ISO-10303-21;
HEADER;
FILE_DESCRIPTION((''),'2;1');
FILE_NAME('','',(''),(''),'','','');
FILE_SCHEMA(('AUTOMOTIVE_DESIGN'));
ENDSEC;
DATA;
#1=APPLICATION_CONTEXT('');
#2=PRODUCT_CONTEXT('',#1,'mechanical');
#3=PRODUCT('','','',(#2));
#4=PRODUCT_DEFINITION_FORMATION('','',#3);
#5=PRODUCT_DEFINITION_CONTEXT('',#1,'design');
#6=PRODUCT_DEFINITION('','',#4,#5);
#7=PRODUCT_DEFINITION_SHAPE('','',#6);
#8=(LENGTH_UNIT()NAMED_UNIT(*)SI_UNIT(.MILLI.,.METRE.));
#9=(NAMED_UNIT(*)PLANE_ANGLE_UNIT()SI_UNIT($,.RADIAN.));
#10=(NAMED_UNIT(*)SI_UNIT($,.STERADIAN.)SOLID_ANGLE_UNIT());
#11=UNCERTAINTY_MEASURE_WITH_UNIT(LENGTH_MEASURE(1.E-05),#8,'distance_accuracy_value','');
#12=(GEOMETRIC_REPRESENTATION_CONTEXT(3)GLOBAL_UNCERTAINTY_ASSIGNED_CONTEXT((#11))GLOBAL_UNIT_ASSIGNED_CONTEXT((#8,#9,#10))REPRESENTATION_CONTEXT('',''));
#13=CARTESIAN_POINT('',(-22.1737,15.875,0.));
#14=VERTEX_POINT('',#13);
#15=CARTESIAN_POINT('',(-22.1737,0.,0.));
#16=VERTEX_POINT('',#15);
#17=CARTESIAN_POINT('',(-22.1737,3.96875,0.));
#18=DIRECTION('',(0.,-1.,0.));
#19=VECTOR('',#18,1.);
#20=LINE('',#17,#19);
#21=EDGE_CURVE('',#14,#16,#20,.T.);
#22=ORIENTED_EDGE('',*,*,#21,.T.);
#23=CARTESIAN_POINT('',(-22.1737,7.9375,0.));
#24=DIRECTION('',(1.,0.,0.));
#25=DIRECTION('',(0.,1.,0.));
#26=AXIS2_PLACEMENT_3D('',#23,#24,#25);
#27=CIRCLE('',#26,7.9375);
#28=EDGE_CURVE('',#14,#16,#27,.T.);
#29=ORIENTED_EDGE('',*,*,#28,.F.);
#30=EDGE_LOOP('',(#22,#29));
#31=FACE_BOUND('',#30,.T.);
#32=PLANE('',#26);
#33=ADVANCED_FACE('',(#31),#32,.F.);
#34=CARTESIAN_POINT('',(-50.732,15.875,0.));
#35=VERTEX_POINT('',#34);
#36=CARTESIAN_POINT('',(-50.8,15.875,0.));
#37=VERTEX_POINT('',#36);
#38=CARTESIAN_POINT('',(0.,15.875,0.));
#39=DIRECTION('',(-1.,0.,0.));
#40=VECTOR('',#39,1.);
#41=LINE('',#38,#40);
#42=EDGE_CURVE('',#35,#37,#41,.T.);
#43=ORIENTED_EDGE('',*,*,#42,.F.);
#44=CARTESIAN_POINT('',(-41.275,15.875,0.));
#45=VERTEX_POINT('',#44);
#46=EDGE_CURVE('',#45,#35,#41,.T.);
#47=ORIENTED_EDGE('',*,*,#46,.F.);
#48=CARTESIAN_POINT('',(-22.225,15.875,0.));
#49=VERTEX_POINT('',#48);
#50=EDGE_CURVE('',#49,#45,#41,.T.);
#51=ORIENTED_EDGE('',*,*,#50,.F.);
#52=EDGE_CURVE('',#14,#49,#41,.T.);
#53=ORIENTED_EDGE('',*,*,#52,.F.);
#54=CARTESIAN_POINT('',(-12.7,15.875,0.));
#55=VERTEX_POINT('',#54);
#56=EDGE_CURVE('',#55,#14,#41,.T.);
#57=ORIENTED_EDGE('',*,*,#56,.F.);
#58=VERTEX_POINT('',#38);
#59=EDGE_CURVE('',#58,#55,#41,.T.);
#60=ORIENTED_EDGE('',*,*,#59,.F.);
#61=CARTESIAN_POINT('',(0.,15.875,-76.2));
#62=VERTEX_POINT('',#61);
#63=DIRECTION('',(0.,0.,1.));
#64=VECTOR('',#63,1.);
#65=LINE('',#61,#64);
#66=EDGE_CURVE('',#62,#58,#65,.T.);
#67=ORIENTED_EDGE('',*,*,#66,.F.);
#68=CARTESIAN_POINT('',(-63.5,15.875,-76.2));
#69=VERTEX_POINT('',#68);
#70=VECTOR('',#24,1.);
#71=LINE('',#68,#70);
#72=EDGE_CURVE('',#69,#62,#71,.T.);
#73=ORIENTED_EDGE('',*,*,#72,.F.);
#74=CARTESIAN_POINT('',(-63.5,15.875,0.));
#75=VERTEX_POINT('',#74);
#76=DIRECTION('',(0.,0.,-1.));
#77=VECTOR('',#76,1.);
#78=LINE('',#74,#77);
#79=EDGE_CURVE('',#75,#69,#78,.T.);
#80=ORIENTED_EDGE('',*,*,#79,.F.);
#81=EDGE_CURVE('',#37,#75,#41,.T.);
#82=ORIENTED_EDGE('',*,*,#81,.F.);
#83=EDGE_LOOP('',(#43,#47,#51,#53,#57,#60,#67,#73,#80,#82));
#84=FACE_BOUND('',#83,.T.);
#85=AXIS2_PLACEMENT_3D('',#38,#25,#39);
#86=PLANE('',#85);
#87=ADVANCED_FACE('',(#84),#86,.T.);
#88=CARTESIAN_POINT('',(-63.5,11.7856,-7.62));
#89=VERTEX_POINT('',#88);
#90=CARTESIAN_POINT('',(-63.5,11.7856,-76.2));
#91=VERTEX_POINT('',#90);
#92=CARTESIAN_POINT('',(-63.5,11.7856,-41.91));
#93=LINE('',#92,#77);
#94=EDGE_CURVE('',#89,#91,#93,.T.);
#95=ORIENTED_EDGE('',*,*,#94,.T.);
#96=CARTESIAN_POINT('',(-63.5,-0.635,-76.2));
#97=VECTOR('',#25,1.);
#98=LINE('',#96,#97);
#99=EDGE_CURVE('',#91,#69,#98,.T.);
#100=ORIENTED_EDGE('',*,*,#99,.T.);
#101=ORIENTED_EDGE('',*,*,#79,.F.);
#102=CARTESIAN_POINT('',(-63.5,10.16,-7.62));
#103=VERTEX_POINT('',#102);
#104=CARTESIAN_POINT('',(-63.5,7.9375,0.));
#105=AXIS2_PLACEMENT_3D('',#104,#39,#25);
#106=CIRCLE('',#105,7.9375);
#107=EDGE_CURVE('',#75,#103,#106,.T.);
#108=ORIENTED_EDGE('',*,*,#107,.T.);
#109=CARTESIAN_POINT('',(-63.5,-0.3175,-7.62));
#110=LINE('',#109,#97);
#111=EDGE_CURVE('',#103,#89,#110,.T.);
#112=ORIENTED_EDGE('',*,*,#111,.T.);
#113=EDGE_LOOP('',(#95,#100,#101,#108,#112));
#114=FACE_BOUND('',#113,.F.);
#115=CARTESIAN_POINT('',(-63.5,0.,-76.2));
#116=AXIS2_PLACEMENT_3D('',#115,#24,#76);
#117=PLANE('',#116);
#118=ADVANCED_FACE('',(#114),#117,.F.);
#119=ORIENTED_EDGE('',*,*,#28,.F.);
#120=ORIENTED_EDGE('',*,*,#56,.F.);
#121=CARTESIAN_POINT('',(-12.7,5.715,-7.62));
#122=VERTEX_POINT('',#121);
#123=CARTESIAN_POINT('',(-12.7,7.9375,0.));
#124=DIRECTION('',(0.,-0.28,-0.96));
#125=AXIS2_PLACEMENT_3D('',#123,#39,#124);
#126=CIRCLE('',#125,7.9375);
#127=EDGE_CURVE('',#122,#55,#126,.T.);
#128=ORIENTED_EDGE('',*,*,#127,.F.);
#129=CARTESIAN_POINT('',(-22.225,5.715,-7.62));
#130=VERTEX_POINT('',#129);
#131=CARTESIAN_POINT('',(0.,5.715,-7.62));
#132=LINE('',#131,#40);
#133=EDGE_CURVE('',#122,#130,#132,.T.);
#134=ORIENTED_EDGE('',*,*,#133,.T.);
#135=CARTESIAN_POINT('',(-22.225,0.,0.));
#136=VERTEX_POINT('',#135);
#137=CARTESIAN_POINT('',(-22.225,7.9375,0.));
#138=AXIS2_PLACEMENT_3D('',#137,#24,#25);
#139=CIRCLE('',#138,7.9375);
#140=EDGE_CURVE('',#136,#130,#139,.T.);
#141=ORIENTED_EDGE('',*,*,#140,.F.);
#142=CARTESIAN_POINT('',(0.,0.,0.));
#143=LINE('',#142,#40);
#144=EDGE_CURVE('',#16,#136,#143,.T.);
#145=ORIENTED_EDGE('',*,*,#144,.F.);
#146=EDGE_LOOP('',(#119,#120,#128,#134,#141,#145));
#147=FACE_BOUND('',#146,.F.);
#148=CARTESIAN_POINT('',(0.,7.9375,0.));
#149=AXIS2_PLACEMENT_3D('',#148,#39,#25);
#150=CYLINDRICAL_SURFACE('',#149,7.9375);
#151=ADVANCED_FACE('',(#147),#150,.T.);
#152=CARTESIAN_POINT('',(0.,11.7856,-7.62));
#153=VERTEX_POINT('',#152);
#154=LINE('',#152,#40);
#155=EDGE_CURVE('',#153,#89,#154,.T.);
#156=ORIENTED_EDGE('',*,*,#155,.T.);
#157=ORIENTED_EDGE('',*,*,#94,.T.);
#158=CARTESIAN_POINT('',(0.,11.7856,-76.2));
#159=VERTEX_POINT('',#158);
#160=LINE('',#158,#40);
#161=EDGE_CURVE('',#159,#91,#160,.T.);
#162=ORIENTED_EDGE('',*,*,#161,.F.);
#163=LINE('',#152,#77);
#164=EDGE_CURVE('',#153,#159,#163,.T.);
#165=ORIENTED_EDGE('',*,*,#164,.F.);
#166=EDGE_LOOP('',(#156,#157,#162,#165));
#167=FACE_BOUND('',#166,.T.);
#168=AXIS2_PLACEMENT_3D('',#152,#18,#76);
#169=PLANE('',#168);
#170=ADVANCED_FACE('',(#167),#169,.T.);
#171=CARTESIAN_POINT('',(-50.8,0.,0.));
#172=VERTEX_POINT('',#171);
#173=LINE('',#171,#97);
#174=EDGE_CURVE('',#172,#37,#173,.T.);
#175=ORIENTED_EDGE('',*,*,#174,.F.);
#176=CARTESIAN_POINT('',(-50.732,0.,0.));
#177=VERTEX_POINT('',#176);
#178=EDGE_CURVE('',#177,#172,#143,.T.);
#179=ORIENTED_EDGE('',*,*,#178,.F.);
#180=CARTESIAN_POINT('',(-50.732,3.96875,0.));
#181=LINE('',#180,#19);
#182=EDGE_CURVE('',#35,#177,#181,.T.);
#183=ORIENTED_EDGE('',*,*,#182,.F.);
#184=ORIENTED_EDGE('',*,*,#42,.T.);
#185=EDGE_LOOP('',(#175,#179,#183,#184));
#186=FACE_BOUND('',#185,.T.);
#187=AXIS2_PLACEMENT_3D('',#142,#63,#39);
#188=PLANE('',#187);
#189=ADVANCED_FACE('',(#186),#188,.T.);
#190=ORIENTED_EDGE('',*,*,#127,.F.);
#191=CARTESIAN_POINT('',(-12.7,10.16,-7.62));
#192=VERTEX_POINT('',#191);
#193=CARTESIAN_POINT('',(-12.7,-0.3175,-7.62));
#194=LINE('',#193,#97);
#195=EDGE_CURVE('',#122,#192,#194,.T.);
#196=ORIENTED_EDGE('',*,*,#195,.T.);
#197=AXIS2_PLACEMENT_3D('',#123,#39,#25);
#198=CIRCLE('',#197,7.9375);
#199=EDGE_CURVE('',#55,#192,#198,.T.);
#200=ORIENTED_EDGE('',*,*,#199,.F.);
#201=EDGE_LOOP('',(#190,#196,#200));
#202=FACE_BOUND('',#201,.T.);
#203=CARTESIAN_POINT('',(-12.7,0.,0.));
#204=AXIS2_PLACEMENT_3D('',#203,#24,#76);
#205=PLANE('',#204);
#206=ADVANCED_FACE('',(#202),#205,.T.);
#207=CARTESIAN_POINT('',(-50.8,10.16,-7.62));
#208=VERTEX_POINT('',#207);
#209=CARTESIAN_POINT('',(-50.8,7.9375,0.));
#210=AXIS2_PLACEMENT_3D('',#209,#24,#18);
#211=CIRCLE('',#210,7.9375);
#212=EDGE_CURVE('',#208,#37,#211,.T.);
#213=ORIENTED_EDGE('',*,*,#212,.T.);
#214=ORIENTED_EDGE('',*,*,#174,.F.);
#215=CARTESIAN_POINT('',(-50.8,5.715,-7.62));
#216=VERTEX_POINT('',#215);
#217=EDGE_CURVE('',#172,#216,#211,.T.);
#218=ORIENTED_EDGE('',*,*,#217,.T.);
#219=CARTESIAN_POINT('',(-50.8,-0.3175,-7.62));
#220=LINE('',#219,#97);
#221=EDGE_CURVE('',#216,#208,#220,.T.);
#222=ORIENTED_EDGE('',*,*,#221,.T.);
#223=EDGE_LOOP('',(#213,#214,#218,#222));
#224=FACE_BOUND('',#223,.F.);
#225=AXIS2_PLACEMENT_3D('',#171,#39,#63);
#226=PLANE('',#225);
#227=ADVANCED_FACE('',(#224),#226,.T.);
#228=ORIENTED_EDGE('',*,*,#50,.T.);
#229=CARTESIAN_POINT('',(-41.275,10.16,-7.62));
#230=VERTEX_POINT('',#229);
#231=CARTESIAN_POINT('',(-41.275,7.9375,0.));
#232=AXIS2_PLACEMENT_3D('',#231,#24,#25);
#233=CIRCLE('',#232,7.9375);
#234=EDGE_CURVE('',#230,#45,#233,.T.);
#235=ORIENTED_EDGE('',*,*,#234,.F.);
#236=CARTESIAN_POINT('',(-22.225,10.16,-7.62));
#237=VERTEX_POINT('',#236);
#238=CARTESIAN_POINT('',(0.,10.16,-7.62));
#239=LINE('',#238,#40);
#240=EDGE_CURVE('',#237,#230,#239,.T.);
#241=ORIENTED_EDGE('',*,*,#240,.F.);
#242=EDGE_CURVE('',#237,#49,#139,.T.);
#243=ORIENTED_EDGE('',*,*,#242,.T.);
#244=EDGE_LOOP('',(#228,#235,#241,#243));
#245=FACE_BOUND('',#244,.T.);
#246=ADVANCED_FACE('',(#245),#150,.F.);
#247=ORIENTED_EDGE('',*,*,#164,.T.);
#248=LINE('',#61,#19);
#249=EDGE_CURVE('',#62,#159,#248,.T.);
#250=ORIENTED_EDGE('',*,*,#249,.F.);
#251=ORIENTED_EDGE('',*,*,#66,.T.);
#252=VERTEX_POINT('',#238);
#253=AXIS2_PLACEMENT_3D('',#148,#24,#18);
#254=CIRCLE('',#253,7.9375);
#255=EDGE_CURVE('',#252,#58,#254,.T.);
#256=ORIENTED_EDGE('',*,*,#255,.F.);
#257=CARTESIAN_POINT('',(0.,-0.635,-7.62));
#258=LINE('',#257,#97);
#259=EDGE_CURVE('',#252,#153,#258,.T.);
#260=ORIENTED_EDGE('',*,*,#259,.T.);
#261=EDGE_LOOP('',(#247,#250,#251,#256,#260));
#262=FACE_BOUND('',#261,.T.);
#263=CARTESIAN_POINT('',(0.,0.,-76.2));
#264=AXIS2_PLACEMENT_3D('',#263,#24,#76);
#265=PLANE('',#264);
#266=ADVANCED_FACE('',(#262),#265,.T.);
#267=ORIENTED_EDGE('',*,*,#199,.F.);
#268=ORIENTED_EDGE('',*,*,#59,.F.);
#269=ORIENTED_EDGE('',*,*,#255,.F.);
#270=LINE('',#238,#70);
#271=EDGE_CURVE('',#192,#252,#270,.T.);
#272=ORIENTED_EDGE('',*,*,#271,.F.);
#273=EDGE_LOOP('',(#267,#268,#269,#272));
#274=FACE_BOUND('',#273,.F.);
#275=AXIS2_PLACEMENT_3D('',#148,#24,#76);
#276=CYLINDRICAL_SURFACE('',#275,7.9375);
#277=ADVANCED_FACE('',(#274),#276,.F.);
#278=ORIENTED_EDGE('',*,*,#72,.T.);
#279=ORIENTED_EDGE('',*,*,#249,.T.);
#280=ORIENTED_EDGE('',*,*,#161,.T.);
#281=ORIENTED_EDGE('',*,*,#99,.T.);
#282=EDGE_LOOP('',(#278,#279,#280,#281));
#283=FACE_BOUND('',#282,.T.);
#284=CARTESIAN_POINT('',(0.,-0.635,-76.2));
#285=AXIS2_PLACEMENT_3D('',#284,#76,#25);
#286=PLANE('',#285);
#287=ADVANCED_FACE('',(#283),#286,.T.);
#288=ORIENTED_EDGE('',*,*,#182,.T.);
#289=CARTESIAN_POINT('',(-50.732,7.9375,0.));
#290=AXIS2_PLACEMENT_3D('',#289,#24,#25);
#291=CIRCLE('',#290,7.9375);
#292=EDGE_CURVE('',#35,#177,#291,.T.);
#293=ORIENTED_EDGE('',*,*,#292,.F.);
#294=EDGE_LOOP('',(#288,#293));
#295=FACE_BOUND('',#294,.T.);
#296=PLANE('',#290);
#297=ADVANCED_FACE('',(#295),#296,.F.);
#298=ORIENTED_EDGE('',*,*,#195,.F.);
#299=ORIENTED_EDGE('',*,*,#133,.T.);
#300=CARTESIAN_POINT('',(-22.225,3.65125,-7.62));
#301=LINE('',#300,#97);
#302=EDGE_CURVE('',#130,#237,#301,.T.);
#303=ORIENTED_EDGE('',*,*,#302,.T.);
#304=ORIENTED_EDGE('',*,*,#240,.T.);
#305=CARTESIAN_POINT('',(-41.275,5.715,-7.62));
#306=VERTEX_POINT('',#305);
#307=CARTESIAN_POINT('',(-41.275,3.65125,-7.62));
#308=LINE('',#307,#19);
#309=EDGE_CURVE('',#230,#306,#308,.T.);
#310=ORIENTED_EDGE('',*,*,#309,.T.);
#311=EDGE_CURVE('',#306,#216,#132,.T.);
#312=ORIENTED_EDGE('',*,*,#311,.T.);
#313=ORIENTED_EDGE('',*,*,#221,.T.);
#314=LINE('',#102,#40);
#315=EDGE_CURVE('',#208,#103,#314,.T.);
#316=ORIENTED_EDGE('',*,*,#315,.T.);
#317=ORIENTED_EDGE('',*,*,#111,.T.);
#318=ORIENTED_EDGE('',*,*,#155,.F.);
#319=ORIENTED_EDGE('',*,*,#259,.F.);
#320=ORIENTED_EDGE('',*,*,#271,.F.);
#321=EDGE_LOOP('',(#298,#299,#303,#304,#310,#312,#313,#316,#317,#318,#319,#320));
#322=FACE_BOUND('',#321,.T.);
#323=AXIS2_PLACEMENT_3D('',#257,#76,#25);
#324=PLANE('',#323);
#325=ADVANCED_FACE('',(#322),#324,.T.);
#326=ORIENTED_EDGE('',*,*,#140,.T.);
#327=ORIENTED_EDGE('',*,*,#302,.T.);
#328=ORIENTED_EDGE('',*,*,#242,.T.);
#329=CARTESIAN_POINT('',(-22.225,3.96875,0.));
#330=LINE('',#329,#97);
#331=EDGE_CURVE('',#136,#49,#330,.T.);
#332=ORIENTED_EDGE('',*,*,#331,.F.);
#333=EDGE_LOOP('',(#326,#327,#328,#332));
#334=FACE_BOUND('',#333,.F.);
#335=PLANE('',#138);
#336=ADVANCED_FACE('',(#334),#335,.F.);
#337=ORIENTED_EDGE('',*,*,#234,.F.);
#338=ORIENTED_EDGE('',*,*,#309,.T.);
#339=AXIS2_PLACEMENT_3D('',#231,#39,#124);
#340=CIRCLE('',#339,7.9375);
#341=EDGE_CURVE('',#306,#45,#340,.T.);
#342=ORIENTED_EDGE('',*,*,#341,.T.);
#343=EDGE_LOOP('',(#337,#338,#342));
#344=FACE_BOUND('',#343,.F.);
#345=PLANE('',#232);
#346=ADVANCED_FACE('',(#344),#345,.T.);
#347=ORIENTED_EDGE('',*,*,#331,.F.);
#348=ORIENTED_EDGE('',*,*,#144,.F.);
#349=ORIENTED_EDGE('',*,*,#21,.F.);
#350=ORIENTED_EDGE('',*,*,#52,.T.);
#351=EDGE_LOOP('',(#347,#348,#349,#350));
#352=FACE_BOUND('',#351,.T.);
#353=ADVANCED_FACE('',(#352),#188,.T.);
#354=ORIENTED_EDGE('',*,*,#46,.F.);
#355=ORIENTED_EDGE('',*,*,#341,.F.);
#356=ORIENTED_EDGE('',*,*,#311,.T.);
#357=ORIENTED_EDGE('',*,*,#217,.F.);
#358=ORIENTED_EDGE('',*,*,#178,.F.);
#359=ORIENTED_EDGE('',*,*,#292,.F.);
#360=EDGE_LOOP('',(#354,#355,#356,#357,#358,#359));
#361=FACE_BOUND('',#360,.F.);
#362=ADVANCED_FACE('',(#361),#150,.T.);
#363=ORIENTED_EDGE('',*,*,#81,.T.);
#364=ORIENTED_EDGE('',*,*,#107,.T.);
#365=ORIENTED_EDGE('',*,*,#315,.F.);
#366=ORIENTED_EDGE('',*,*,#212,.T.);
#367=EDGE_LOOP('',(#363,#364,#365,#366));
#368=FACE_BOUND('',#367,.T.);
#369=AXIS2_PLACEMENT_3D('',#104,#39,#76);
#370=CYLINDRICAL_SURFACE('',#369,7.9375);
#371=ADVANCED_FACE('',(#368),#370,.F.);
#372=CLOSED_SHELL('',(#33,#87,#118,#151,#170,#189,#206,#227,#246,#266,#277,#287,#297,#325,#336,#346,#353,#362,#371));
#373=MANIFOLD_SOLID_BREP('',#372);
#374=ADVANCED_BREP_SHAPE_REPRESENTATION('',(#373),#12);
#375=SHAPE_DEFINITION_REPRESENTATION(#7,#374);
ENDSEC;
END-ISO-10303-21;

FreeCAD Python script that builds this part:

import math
import FreeCAD as App
import Part
import Sketcher
Q = App.Units.Quantity


def add_polygon(sketch, points):
    """Adds a closed chain of lines whose ends are joined by coincident constraints."""
    first, n = sketch.GeometryCount, len(points)
    for a, b in zip(points, points[1:] + points[:1]):
        sketch.addGeometry(Part.LineSegment(App.Vector(*a, 0), App.Vector(*b, 0)), False)
    for i in range(n):
        sketch.addConstraint(Sketcher.Constraint("Coincident", first + i, 2, first + (i + 1) % n, 1))

doc = App.newDocument("Part")
body = doc.addObject("PartDesign::Body", "Body")

# Sketch on XZ plane
sketch1 = doc.addObject("Sketcher::SketchObject", "Sketch")
body.addObject(sketch1)
sketch1.AttachmentSupport = (doc.XZ_Plane, [""])
sketch1.MapMode = "FlatFace"
add_polygon(sketch1, [(-64, 0), (0, 0), (0, -76), (-64, -76)])  # lines 0-3
sketch1.addConstraint([
    Sketcher.Constraint("Horizontal", 0),
    Sketcher.Constraint("Vertical", 1),
    Sketcher.Constraint("Horizontal", 2),
    Sketcher.Constraint("Vertical", 3),
    Sketcher.Constraint("Coincident", 0, 2, -1, 1),
    Sketcher.Constraint("DistanceY", 1, 2, 1, 1, Q("3 in")),
    Sketcher.Constraint("DistanceX", 0, 1, 0, 2, Q("2.5 in")),
])
pad1 = doc.addObject("PartDesign::Pad", "Pad")
body.addObject(pad1)
pad1.Profile = sketch1
pad1.Length = Q("0.625 in")
pad1.Reversed = True

# Sketch on YZ plane
sketch2 = doc.addObject("Sketcher::SketchObject", "Sketch001")
body.addObject(sketch2)
sketch2.AttachmentSupport = (doc.YZ_Plane, [""])
sketch2.MapMode = "FlatFace"
sketch2.addGeometry([
    Part.LineSegment(App.Vector(16, 0, 0), App.Vector(0, 0, 0)),
    Part.ArcOfCircle(Part.Circle(App.Vector(8, 0, 0), App.Vector(0, 0, 1), 8), math.radians(180), math.radians(360)),
], False)
sketch2.addConstraint([
    Sketcher.Constraint("Coincident", 0, 1, 1, 2),
    Sketcher.Constraint("Coincident", 1, 1, 0, 2),
    Sketcher.Constraint("Horizontal", 0),
    Sketcher.Constraint("Coincident", 1, 1, -1, 1),
    Sketcher.Constraint("PointOnObject", 1, 3, -1),
    Sketcher.Constraint("Radius", 1, Q("0.3125 in")),
])
pocket1 = doc.addObject("PartDesign::Pocket", "Pocket")
body.addObject(pocket1)
pocket1.Profile = sketch2
pocket1.Length = Q("0.5 in")
doc.recompute()

datumplane = doc.addObject("PartDesign::Plane", "DatumPlane")
body.addObject(datumplane)
datumplane.AttachmentSupport = (doc.YZ_Plane, [""])
datumplane.MapMode = "FlatFace"
datumplane.AttachmentOffset = App.Placement(App.Vector(0, 0, -1.25 * 25.4), App.Rotation())
mirrored = doc.addObject("PartDesign::Mirrored", "Mirrored")
body.addObject(mirrored)
mirrored.Originals = [pocket1]
mirrored.MirrorPlane = (datumplane, [""])
body.Tip = mirrored

# Sketch on XY plane
sketch3 = doc.addObject("Sketcher::SketchObject", "Sketch002")
body.addObject(sketch3)
sketch3.AttachmentSupport = (doc.XY_Plane, [""])
sketch3.MapMode = "FlatFace"
add_polygon(sketch3, [(-22, 8), (-22, 16), (-41, 16), (-41, 8)])  # lines 0-3
sketch3.addGeometry(Part.LineSegment(App.Vector(-41, 8, 0), App.Vector(-22, 8, 0)), True)  # axis
sketch3.addConstraint([
    Sketcher.Constraint("Vertical", 0),
    Sketcher.Constraint("Horizontal", 1),
    Sketcher.Constraint("Vertical", 2),
    Sketcher.Constraint("Horizontal", 3),
    Sketcher.Constraint("Horizontal", 4),
    Sketcher.Constraint("Coincident", 4, 1, 2, 2),
    Sketcher.Constraint("Vertical", 0, 2, 4, 2),
    Sketcher.Constraint("DistanceX", 1, 2, 1, 1, Q("0.75 in")),
    Sketcher.Constraint("DistanceY", 0, 1, 0, 2, Q("0.3125 in")),
    Sketcher.Constraint("DistanceX", 0, 2, -1, 1, Q("0.875 in")),
    Sketcher.Constraint("DistanceY", -1, 1, 0, 2, Q("0.625 in")),
])
groove = doc.addObject("PartDesign::Groove", "Groove")
body.addObject(groove)
groove.Profile = sketch3
groove.ReferenceAxis = (sketch3, ["Axis0"])
groove.Angle = 360

# Sketch on XY plane
sketch4 = doc.addObject("Sketcher::SketchObject", "Sketch003")
body.addObject(sketch4)
sketch4.AttachmentSupport = (doc.XY_Plane, [""])
sketch4.MapMode = "FlatFace"
add_polygon(sketch4, [(-13, 8), (-13, 16), (-22, 16), (-22, 8)])  # lines 0-3
add_polygon(sketch4, [(-41, 8), (-41, 16), (-51, 16), (-51, 8)])  # lines 4-7
sketch4.addGeometry(Part.LineSegment(App.Vector(-51, 8, 0), App.Vector(-13, 8, 0)), True)  # axis
sketch4.addConstraint([
    Sketcher.Constraint("Vertical", 0),
    Sketcher.Constraint("Horizontal", 1),
    Sketcher.Constraint("Vertical", 2),
    Sketcher.Constraint("Horizontal", 3),
    Sketcher.Constraint("Vertical", 4),
    Sketcher.Constraint("Horizontal", 5),
    Sketcher.Constraint("Vertical", 6),
    Sketcher.Constraint("Horizontal", 7),
    Sketcher.Constraint("Horizontal", 8),
    Sketcher.Constraint("Coincident", 8, 1, 6, 2),
    Sketcher.Constraint("Coincident", 8, 2, 3, 2),
    Sketcher.Constraint("Horizontal", 1, 2, 4, 2),
    Sketcher.Constraint("DistanceX", 0, 2, -1, 1, Q("0.5 in")),
    Sketcher.Constraint("DistanceY", 0, 1, 0, 2, Q("0.3125 in")),
    Sketcher.Constraint("DistanceY", -1, 1, 0, 2, Q("0.625 in")),
    Sketcher.Constraint("DistanceX", 4, 2, -1, 1, Q("1.625 in")),
    Sketcher.Constraint("DistanceX", 1, 2, 1, 1, 9.4737),
    Sketcher.Constraint("DistanceX", 5, 2, 5, 1, 9.457),
])
revolution = doc.addObject("PartDesign::Revolution", "Revolution")
body.addObject(revolution)
revolution.Profile = sketch4
revolution.ReferenceAxis = (sketch4, ["Axis0"])
revolution.Angle = 360

# Sketch on YZ plane
sketch5 = doc.addObject("Sketcher::SketchObject", "Sketch004")
body.addObject(sketch5)
sketch5.AttachmentSupport = (doc.YZ_Plane, [""])
sketch5.MapMode = "FlatFace"
add_polygon(sketch5, [(-0.6, -76.2), (0, -76.2), (0, -12.7), (-0.6, -12.7)])  # lines 0-3
sketch5.addConstraint([
    Sketcher.Constraint("Horizontal", 0),
    Sketcher.Constraint("Vertical", 1),
    Sketcher.Constraint("Horizontal", 2),
    Sketcher.Constraint("Vertical", 3),
    Sketcher.Constraint("PointOnObject", 0, 2, -2),
    Sketcher.Constraint("DistanceY", 0, 2, -1, 1, Q("3 in")),
    Sketcher.Constraint("DistanceX", 0, 1, 0, 2, Q("0.025 in")),
    Sketcher.Constraint("DistanceY", 1, 1, 1, 2, 63.486),
])
pad2 = doc.addObject("PartDesign::Pad", "Pad001")
body.addObject(pad2)
pad2.Profile = sketch5
pad2.Length = Q("2.5 in")
pad2.Reversed = True

# Sketch on YZ plane
sketch6 = doc.addObject("Sketcher::SketchObject", "Sketch005")
body.addObject(sketch6)
sketch6.AttachmentSupport = (doc.YZ_Plane, [""])
sketch6.MapMode = "FlatFace"
add_polygon(sketch6, [(-1, -8), (-1, -76), (12, -76), (12, -8)])  # lines 0-3
sketch6.addConstraint([
    Sketcher.Constraint("Vertical", 0),
    Sketcher.Constraint("Horizontal", 1),
    Sketcher.Constraint("Vertical", 2),
    Sketcher.Constraint("Horizontal", 3),
    Sketcher.Constraint("DistanceY", 0, 2, 0, 1, Q("2.7 in")),
    Sketcher.Constraint("DistanceY", 0, 2, -1, 1, Q("3 in")),
    Sketcher.Constraint("DistanceX", 1, 1, 1, 2, Q("0.489 in")),
    Sketcher.Constraint("DistanceX", 0, 2, -1, 1, Q("0.025 in")),
])
pocket2 = doc.addObject("PartDesign::Pocket", "Pocket001")
body.addObject(pocket2)
pocket2.Profile = sketch6
pocket2.Type = "ThroughAll"

# Sketch on YZ plane
sketch7 = doc.addObject("Sketcher::SketchObject", "Sketch006")
body.addObject(sketch7)
sketch7.AttachmentSupport = (doc.YZ_Plane, [""])
sketch7.MapMode = "FlatFace"
sketch7.addGeometry([
    Part.ArcOfCircle(Part.Circle(App.Vector(8, 0, 0), App.Vector(0, 0, 1), 8), math.radians(180), math.radians(254)),
    Part.LineSegment(App.Vector(0, 0, 0), App.Vector(0, -8, 0)),
    Part.LineSegment(App.Vector(0, -8, 0), App.Vector(6, -8, 0)),
], False)
sketch7.addConstraint([
    Sketcher.Constraint("Tangent", 0, 1, 1, 1),
    Sketcher.Constraint("Coincident", 1, 2, 2, 1),
    Sketcher.Constraint("Coincident", 2, 2, 0, 2),
    Sketcher.Constraint("Vertical", 1),
    Sketcher.Constraint("Horizontal", 2),
    Sketcher.Constraint("Coincident", 0, 1, -1, 1),
    Sketcher.Constraint("DistanceY", 1, 2, 1, 1, Q("0.3 in")),
    Sketcher.Constraint("Radius", 0, Q("0.3125 in")),
])
pocket3 = doc.addObject("PartDesign::Pocket", "Pocket002")
body.addObject(pocket3)
pocket3.Profile = sketch7
pocket3.Type = "ThroughAll"

doc.recompute()
